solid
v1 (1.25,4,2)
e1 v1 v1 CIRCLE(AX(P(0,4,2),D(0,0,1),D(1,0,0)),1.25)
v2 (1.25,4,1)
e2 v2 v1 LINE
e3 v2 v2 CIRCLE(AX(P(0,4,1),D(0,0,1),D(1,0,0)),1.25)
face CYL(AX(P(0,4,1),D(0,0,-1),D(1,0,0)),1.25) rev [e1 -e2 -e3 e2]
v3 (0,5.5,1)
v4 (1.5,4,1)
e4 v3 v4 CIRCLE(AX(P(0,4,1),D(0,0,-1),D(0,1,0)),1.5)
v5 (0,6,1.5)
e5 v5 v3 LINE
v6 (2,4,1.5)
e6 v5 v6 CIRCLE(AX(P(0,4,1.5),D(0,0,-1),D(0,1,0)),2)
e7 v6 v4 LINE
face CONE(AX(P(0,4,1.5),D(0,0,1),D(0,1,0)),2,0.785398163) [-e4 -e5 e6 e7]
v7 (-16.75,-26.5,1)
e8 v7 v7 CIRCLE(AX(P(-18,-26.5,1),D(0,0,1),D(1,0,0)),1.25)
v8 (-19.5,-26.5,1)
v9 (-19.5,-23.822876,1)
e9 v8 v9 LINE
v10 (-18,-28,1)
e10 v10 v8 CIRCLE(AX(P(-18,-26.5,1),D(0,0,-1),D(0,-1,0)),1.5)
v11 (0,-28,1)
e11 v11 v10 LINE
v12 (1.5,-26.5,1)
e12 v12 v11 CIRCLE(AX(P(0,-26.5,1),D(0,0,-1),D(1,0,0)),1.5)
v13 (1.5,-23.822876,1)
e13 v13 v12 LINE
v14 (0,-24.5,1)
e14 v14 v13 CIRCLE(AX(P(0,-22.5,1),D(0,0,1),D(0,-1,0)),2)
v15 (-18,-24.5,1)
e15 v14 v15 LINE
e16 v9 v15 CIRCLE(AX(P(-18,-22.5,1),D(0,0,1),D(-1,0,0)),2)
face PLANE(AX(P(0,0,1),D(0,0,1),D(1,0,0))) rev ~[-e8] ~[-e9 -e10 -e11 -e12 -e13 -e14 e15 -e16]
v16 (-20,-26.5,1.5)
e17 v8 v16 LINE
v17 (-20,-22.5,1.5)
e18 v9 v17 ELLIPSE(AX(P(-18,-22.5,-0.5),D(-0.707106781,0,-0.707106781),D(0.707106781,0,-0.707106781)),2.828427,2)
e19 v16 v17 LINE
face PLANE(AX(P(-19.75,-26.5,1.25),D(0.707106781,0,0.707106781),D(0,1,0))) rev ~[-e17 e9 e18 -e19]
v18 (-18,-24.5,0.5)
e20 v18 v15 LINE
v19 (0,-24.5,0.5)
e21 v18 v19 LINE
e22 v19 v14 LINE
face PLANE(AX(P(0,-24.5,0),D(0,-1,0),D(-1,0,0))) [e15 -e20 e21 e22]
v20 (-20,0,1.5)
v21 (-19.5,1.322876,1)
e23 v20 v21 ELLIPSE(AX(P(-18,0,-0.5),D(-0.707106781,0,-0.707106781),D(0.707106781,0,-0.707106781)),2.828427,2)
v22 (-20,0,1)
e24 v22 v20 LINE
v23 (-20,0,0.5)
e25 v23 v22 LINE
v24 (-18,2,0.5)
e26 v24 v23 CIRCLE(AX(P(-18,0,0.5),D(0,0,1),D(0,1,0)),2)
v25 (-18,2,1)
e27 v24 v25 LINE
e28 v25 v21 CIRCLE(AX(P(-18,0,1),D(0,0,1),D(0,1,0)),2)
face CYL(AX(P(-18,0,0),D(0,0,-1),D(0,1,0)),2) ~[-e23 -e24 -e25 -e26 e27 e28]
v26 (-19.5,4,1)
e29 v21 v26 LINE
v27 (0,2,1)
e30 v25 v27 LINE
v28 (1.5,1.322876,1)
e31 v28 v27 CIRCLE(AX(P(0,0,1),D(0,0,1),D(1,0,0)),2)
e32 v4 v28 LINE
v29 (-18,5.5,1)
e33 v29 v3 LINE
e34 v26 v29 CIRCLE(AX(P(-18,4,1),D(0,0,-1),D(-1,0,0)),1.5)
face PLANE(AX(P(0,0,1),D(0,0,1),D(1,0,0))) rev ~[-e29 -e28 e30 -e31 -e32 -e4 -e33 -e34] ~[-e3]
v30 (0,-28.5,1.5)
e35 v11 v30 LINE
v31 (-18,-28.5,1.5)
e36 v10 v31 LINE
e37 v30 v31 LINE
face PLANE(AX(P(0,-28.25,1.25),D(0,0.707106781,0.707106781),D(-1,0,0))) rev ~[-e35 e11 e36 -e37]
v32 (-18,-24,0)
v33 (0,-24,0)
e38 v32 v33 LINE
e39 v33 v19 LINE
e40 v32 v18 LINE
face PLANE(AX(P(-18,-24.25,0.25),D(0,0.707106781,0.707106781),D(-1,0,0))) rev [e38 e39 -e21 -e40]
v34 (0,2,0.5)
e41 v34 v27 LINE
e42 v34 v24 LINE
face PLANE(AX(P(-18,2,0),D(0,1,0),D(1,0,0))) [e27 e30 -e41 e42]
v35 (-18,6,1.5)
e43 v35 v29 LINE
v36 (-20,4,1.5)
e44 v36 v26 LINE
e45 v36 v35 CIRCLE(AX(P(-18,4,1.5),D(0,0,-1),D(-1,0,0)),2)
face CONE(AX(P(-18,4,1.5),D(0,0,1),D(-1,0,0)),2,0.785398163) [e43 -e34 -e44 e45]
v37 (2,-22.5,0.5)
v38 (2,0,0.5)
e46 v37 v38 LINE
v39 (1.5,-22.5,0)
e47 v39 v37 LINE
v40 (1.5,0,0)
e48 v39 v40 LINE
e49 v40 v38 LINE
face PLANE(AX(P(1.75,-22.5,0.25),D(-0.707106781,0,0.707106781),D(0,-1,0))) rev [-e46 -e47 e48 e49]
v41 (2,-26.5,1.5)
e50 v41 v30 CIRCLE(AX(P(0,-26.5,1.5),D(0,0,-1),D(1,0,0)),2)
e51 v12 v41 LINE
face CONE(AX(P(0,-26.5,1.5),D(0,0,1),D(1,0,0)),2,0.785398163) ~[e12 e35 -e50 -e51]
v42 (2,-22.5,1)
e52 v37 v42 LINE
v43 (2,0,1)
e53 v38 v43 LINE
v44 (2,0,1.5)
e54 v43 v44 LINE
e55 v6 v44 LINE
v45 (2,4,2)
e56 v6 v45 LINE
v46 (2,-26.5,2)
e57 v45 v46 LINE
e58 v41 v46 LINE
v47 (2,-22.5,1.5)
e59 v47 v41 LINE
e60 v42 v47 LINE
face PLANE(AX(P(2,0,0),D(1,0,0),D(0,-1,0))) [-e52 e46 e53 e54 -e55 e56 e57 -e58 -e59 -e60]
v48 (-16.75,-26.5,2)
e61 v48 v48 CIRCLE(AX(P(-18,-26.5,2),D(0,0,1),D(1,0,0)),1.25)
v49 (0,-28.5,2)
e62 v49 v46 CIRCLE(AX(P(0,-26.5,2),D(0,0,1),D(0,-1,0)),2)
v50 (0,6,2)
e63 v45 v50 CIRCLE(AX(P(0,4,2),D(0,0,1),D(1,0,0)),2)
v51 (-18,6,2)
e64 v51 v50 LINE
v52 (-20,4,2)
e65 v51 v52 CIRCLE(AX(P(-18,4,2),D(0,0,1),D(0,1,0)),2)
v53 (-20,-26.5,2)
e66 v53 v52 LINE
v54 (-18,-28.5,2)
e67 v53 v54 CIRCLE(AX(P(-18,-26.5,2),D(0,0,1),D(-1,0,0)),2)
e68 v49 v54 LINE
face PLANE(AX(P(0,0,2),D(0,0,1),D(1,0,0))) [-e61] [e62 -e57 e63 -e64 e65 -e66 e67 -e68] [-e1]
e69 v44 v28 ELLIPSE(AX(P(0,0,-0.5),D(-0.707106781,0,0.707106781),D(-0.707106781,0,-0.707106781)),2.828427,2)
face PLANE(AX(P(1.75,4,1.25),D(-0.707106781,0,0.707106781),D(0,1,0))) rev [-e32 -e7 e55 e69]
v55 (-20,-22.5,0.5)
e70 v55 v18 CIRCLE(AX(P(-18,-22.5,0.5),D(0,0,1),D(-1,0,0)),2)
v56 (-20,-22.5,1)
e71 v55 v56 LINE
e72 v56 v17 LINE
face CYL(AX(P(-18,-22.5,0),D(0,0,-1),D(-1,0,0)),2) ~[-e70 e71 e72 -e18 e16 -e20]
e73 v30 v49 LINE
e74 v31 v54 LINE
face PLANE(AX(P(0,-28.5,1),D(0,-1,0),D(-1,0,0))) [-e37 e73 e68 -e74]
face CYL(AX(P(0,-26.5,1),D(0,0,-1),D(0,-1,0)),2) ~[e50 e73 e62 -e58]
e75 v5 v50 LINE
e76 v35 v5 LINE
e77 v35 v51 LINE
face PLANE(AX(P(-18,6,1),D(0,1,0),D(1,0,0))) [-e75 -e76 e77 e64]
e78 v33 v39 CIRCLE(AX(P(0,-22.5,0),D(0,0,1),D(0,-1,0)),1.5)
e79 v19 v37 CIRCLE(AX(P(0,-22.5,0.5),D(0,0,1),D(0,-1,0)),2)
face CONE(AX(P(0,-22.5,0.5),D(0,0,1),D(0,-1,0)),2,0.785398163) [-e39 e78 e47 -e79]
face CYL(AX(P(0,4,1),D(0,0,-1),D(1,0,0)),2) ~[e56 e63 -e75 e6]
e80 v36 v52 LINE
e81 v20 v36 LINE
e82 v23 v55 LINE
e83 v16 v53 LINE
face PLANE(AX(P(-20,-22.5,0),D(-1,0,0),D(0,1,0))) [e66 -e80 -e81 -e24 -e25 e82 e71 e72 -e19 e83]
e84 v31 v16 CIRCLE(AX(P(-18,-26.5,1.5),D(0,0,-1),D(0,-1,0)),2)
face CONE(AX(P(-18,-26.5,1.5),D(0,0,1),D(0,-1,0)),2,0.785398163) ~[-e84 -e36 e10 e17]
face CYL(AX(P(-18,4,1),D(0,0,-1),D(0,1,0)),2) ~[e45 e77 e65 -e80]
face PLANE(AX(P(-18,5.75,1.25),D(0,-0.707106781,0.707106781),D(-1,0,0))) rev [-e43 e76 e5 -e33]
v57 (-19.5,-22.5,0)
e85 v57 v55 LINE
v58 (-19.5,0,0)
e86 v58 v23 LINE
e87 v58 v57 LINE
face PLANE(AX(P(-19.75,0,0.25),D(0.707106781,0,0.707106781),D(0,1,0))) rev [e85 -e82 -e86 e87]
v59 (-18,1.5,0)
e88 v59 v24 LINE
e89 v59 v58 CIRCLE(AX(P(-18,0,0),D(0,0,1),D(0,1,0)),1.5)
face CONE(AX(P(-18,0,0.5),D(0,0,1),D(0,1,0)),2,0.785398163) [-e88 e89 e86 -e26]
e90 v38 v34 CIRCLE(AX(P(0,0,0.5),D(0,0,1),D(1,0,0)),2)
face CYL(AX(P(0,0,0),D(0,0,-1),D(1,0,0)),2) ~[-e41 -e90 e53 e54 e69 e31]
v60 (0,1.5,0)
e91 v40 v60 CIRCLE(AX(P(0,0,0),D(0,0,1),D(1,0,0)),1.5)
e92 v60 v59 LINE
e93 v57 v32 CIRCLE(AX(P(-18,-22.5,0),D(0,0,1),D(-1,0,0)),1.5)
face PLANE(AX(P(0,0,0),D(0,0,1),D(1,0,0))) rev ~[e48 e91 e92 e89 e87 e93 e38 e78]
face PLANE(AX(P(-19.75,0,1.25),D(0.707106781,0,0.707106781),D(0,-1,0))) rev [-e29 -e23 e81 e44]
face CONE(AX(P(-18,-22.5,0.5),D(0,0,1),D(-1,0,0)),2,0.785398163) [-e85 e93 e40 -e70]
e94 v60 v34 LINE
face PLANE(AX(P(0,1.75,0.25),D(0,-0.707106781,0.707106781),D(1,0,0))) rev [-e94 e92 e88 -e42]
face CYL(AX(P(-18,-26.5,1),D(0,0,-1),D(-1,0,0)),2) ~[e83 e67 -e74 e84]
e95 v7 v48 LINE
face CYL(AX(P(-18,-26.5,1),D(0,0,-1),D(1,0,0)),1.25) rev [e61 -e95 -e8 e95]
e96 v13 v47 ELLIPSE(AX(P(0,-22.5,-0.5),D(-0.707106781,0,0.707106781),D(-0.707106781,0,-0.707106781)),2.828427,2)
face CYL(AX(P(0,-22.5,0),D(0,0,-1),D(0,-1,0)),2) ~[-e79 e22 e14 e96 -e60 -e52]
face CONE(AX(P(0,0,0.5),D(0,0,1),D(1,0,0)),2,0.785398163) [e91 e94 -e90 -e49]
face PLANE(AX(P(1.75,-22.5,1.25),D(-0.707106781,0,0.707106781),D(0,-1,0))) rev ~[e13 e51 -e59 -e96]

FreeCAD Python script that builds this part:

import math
import FreeCAD as App
import Part
import Sketcher
from FreeCAD import Vector


def edges_at(feature, points):
    """Names of the edges that pass closest to the given points."""
    edges = feature.Shape.Edges
    near = lambda p: min(range(len(edges)), key=lambda i: edges[i].distToShape(Part.Vertex(*p))[0])
    return sorted({f"Edge{near(p) + 1}" for p in points})

doc = App.newDocument("Part")
body = doc.addObject("PartDesign::Body", "Body")

# Sketch on XY plane
sketch1 = body.newObject("Sketcher::SketchObject", "Sketch")
sketch1.AttachmentSupport = (doc.getObject("XY_Plane"), [""])
sketch1.MapMode = "FlatFace"
sketch1.addGeometry(Part.LineSegment(Vector(-18, -24.5, 0), Vector(0, -24.5, 0)), False)
sketch1.addGeometry(Part.ArcOfCircle(Part.Circle(Vector(0, -22.5, 0), Vector(0, 0, 1), 2), math.radians(-90), math.radians(0)), False)
sketch1.addGeometry(Part.LineSegment(Vector(2, -22.5, 0), Vector(2, 0, 0)), False)
sketch1.addGeometry(Part.ArcOfCircle(Part.Circle(Vector(0, 0, 0), Vector(0, 0, 1), 2), math.radians(0), math.radians(90)), False)
sketch1.addGeometry(Part.LineSegment(Vector(0, 2, 0), Vector(-18, 2, 0)), False)
sketch1.addGeometry(Part.ArcOfCircle(Part.Circle(Vector(-18, 0, 0), Vector(0, 0, 1), 2), math.radians(90), math.radians(180)), False)
sketch1.addGeometry(Part.LineSegment(Vector(-20, 0, 0), Vector(-20, -22.5, 0)), False)
sketch1.addGeometry(Part.ArcOfCircle(Part.Circle(Vector(-18, -22.5, 0), Vector(0, 0, 1), 2), math.radians(180), math.radians(270)), False)
sketch1.addConstraint(Sketcher.Constraint("Tangent", 0, 2, 1, 1))
sketch1.addConstraint(Sketcher.Constraint("Tangent", 1, 2, 2, 1))
sketch1.addConstraint(Sketcher.Constraint("Tangent", 2, 2, 3, 1))
sketch1.addConstraint(Sketcher.Constraint("Tangent", 3, 2, 4, 1))
sketch1.addConstraint(Sketcher.Constraint("Tangent", 4, 2, 5, 1))
sketch1.addConstraint(Sketcher.Constraint("Tangent", 5, 2, 6, 1))
sketch1.addConstraint(Sketcher.Constraint("Tangent", 6, 2, 7, 1))
sketch1.addConstraint(Sketcher.Constraint("Tangent", 7, 2, 0, 1))
sketch1.addConstraint(Sketcher.Constraint("Horizontal", 0))
sketch1.addConstraint(Sketcher.Constraint("Vertical", 2))
sketch1.addConstraint(Sketcher.Constraint("Horizontal", 4))
sketch1.addConstraint(Sketcher.Constraint("Vertical", 6))
sketch1.addConstraint(Sketcher.Constraint("Coincident", 3, 3, -1, 1))
sketch1.addConstraint(Sketcher.Constraint("Equal", 1, 3))
sketch1.addConstraint(Sketcher.Constraint("Equal", 3, 5))
sketch1.addConstraint(Sketcher.Constraint("Equal", 5, 7))
sketch1.addConstraint(Sketcher.Constraint("Radius", 1, 2.0))
sketch1.addConstraint(Sketcher.Constraint("DistanceX", 5, 2, 2, 2, 22.0))
sketch1.addConstraint(Sketcher.Constraint("DistanceY", 2, 1, 2, 2, 22.5))
pad1 = body.newObject("PartDesign::Pad", "Pad")
pad1.Profile = sketch1
pad1.Length = 1

# Sketch on XY plane
sketch2 = body.newObject("Sketcher::SketchObject", "Sketch001")
sketch2.AttachmentSupport = (doc.getObject("XY_Plane"), [""])
sketch2.MapMode = "FlatFace"
sketch2.AttachmentOffset = App.Placement(Vector(0, 0, 1), App.Rotation())
sketch2.addGeometry(Part.LineSegment(Vector(-20, 4, 0), Vector(-20, -26.5, 0)), False)
sketch2.addGeometry(Part.ArcOfCircle(Part.Circle(Vector(-18, -26.5, 0), Vector(0, 0, 1), 2), math.radians(180), math.radians(270)), False)
sketch2.addGeometry(Part.LineSegment(Vector(-18, -28.5, 0), Vector(0, -28.5, 0)), False)
sketch2.addGeometry(Part.ArcOfCircle(Part.Circle(Vector(0, -26.5, 0), Vector(0, 0, 1), 2), math.radians(-90), math.radians(0)), False)
sketch2.addGeometry(Part.LineSegment(Vector(2, -26.5, 0), Vector(2, 4, 0)), False)
sketch2.addGeometry(Part.ArcOfCircle(Part.Circle(Vector(0, 4, 0), Vector(0, 0, 1), 2), math.radians(0), math.radians(90)), False)
sketch2.addGeometry(Part.LineSegment(Vector(0, 6, 0), Vector(-18, 6, 0)), False)
sketch2.addGeometry(Part.ArcOfCircle(Part.Circle(Vector(-18, 4, 0), Vector(0, 0, 1), 2), math.radians(90), math.radians(180)), False)
sketch2.addGeometry(Part.Circle(Vector(-18, -26.5, 0), Vector(0, 0, 1), 1.25), False)
sketch2.addGeometry(Part.Circle(Vector(0, 4, 0), Vector(0, 0, 1), 1.25), False)
sketch2.addConstraint(Sketcher.Constraint("Tangent", 0, 2, 1, 1))
sketch2.addConstraint(Sketcher.Constraint("Tangent", 1, 2, 2, 1))
sketch2.addConstraint(Sketcher.Constraint("Tangent", 2, 2, 3, 1))
sketch2.addConstraint(Sketcher.Constraint("Tangent", 3, 2, 4, 1))
sketch2.addConstraint(Sketcher.Constraint("Tangent", 4, 2, 5, 1))
sketch2.addConstraint(Sketcher.Constraint("Tangent", 5, 2, 6, 1))
sketch2.addConstraint(Sketcher.Constraint("Tangent", 6, 2, 7, 1))
sketch2.addConstraint(Sketcher.Constraint("Tangent", 7, 2, 0, 1))
sketch2.addConstraint(Sketcher.Constraint("Vertical", 0))
sketch2.addConstraint(Sketcher.Constraint("Horizontal", 2))
sketch2.addConstraint(Sketcher.Constraint("Vertical", 4))
sketch2.addConstraint(Sketcher.Constraint("Horizontal", 6))
sketch2.addConstraint(Sketcher.Constraint("Coincident", 8, 3, 1, 3))
sketch2.addConstraint(Sketcher.Constraint("Coincident", 9, 3, 5, 3))
sketch2.addConstraint(Sketcher.Constraint("Equal", 1, 3))
sketch2.addConstraint(Sketcher.Constraint("Equal", 3, 5))
sketch2.addConstraint(Sketcher.Constraint("Equal", 5, 7))
sketch2.addConstraint(Sketcher.Constraint("Equal", 8, 9))
sketch2.addConstraint(Sketcher.Constraint("PointOnObject", 3, 3, -2))
sketch2.addConstraint(Sketcher.Constraint("Radius", 1, 2.0))
sketch2.addConstraint(Sketcher.Constraint("Diameter", 8, 2.5))
sketch2.addConstraint(Sketcher.Constraint("DistanceY", -1, 1, 5, 3, 4.0))
sketch2.addConstraint(Sketcher.Constraint("DistanceY", 1, 3, -1, 1, 26.5))
sketch2.addConstraint(Sketcher.Constraint("DistanceX", 2, 1, 2, 2, 18.0))
pad2 = body.newObject("PartDesign::Pad", "Pad001")
pad2.Profile = sketch2
pad2.Length = 1
doc.recompute()

chamfer = body.newObject("PartDesign::Chamfer", "Chamfer")
chamfer.Base = (pad2, edges_at(pad2, [
    (-19.414, 1.414, 0),
    (-20, -11.25, 0),
    (-19.414, -23.914, 0),
    (-9, -24.5, 0),
    (1.414, -23.914, 0),
    (2, -11.25, 0),
    (1.414, 1.414, 0),
    (-9, 2, 0),
]))
chamfer.Size = 0.5
doc.recompute()

chamfer2 = body.newObject("PartDesign::Chamfer", "Chamfer001")
chamfer2.Base = (chamfer, edges_at(chamfer, [
    (-20, -24.5, 1),
    (-19.414, -27.914, 1),
    (-9, -28.5, 1),
    (1.414, -27.914, 1),
    (2, -24.5, 1),
    (-20, 2, 1),
    (-19.414, 5.414, 1),
    (-9, 6, 1),
    (1.414, 5.414, 1),
    (2, 2, 1),
]))
chamfer2.Size = 0.5

doc.recompute()
